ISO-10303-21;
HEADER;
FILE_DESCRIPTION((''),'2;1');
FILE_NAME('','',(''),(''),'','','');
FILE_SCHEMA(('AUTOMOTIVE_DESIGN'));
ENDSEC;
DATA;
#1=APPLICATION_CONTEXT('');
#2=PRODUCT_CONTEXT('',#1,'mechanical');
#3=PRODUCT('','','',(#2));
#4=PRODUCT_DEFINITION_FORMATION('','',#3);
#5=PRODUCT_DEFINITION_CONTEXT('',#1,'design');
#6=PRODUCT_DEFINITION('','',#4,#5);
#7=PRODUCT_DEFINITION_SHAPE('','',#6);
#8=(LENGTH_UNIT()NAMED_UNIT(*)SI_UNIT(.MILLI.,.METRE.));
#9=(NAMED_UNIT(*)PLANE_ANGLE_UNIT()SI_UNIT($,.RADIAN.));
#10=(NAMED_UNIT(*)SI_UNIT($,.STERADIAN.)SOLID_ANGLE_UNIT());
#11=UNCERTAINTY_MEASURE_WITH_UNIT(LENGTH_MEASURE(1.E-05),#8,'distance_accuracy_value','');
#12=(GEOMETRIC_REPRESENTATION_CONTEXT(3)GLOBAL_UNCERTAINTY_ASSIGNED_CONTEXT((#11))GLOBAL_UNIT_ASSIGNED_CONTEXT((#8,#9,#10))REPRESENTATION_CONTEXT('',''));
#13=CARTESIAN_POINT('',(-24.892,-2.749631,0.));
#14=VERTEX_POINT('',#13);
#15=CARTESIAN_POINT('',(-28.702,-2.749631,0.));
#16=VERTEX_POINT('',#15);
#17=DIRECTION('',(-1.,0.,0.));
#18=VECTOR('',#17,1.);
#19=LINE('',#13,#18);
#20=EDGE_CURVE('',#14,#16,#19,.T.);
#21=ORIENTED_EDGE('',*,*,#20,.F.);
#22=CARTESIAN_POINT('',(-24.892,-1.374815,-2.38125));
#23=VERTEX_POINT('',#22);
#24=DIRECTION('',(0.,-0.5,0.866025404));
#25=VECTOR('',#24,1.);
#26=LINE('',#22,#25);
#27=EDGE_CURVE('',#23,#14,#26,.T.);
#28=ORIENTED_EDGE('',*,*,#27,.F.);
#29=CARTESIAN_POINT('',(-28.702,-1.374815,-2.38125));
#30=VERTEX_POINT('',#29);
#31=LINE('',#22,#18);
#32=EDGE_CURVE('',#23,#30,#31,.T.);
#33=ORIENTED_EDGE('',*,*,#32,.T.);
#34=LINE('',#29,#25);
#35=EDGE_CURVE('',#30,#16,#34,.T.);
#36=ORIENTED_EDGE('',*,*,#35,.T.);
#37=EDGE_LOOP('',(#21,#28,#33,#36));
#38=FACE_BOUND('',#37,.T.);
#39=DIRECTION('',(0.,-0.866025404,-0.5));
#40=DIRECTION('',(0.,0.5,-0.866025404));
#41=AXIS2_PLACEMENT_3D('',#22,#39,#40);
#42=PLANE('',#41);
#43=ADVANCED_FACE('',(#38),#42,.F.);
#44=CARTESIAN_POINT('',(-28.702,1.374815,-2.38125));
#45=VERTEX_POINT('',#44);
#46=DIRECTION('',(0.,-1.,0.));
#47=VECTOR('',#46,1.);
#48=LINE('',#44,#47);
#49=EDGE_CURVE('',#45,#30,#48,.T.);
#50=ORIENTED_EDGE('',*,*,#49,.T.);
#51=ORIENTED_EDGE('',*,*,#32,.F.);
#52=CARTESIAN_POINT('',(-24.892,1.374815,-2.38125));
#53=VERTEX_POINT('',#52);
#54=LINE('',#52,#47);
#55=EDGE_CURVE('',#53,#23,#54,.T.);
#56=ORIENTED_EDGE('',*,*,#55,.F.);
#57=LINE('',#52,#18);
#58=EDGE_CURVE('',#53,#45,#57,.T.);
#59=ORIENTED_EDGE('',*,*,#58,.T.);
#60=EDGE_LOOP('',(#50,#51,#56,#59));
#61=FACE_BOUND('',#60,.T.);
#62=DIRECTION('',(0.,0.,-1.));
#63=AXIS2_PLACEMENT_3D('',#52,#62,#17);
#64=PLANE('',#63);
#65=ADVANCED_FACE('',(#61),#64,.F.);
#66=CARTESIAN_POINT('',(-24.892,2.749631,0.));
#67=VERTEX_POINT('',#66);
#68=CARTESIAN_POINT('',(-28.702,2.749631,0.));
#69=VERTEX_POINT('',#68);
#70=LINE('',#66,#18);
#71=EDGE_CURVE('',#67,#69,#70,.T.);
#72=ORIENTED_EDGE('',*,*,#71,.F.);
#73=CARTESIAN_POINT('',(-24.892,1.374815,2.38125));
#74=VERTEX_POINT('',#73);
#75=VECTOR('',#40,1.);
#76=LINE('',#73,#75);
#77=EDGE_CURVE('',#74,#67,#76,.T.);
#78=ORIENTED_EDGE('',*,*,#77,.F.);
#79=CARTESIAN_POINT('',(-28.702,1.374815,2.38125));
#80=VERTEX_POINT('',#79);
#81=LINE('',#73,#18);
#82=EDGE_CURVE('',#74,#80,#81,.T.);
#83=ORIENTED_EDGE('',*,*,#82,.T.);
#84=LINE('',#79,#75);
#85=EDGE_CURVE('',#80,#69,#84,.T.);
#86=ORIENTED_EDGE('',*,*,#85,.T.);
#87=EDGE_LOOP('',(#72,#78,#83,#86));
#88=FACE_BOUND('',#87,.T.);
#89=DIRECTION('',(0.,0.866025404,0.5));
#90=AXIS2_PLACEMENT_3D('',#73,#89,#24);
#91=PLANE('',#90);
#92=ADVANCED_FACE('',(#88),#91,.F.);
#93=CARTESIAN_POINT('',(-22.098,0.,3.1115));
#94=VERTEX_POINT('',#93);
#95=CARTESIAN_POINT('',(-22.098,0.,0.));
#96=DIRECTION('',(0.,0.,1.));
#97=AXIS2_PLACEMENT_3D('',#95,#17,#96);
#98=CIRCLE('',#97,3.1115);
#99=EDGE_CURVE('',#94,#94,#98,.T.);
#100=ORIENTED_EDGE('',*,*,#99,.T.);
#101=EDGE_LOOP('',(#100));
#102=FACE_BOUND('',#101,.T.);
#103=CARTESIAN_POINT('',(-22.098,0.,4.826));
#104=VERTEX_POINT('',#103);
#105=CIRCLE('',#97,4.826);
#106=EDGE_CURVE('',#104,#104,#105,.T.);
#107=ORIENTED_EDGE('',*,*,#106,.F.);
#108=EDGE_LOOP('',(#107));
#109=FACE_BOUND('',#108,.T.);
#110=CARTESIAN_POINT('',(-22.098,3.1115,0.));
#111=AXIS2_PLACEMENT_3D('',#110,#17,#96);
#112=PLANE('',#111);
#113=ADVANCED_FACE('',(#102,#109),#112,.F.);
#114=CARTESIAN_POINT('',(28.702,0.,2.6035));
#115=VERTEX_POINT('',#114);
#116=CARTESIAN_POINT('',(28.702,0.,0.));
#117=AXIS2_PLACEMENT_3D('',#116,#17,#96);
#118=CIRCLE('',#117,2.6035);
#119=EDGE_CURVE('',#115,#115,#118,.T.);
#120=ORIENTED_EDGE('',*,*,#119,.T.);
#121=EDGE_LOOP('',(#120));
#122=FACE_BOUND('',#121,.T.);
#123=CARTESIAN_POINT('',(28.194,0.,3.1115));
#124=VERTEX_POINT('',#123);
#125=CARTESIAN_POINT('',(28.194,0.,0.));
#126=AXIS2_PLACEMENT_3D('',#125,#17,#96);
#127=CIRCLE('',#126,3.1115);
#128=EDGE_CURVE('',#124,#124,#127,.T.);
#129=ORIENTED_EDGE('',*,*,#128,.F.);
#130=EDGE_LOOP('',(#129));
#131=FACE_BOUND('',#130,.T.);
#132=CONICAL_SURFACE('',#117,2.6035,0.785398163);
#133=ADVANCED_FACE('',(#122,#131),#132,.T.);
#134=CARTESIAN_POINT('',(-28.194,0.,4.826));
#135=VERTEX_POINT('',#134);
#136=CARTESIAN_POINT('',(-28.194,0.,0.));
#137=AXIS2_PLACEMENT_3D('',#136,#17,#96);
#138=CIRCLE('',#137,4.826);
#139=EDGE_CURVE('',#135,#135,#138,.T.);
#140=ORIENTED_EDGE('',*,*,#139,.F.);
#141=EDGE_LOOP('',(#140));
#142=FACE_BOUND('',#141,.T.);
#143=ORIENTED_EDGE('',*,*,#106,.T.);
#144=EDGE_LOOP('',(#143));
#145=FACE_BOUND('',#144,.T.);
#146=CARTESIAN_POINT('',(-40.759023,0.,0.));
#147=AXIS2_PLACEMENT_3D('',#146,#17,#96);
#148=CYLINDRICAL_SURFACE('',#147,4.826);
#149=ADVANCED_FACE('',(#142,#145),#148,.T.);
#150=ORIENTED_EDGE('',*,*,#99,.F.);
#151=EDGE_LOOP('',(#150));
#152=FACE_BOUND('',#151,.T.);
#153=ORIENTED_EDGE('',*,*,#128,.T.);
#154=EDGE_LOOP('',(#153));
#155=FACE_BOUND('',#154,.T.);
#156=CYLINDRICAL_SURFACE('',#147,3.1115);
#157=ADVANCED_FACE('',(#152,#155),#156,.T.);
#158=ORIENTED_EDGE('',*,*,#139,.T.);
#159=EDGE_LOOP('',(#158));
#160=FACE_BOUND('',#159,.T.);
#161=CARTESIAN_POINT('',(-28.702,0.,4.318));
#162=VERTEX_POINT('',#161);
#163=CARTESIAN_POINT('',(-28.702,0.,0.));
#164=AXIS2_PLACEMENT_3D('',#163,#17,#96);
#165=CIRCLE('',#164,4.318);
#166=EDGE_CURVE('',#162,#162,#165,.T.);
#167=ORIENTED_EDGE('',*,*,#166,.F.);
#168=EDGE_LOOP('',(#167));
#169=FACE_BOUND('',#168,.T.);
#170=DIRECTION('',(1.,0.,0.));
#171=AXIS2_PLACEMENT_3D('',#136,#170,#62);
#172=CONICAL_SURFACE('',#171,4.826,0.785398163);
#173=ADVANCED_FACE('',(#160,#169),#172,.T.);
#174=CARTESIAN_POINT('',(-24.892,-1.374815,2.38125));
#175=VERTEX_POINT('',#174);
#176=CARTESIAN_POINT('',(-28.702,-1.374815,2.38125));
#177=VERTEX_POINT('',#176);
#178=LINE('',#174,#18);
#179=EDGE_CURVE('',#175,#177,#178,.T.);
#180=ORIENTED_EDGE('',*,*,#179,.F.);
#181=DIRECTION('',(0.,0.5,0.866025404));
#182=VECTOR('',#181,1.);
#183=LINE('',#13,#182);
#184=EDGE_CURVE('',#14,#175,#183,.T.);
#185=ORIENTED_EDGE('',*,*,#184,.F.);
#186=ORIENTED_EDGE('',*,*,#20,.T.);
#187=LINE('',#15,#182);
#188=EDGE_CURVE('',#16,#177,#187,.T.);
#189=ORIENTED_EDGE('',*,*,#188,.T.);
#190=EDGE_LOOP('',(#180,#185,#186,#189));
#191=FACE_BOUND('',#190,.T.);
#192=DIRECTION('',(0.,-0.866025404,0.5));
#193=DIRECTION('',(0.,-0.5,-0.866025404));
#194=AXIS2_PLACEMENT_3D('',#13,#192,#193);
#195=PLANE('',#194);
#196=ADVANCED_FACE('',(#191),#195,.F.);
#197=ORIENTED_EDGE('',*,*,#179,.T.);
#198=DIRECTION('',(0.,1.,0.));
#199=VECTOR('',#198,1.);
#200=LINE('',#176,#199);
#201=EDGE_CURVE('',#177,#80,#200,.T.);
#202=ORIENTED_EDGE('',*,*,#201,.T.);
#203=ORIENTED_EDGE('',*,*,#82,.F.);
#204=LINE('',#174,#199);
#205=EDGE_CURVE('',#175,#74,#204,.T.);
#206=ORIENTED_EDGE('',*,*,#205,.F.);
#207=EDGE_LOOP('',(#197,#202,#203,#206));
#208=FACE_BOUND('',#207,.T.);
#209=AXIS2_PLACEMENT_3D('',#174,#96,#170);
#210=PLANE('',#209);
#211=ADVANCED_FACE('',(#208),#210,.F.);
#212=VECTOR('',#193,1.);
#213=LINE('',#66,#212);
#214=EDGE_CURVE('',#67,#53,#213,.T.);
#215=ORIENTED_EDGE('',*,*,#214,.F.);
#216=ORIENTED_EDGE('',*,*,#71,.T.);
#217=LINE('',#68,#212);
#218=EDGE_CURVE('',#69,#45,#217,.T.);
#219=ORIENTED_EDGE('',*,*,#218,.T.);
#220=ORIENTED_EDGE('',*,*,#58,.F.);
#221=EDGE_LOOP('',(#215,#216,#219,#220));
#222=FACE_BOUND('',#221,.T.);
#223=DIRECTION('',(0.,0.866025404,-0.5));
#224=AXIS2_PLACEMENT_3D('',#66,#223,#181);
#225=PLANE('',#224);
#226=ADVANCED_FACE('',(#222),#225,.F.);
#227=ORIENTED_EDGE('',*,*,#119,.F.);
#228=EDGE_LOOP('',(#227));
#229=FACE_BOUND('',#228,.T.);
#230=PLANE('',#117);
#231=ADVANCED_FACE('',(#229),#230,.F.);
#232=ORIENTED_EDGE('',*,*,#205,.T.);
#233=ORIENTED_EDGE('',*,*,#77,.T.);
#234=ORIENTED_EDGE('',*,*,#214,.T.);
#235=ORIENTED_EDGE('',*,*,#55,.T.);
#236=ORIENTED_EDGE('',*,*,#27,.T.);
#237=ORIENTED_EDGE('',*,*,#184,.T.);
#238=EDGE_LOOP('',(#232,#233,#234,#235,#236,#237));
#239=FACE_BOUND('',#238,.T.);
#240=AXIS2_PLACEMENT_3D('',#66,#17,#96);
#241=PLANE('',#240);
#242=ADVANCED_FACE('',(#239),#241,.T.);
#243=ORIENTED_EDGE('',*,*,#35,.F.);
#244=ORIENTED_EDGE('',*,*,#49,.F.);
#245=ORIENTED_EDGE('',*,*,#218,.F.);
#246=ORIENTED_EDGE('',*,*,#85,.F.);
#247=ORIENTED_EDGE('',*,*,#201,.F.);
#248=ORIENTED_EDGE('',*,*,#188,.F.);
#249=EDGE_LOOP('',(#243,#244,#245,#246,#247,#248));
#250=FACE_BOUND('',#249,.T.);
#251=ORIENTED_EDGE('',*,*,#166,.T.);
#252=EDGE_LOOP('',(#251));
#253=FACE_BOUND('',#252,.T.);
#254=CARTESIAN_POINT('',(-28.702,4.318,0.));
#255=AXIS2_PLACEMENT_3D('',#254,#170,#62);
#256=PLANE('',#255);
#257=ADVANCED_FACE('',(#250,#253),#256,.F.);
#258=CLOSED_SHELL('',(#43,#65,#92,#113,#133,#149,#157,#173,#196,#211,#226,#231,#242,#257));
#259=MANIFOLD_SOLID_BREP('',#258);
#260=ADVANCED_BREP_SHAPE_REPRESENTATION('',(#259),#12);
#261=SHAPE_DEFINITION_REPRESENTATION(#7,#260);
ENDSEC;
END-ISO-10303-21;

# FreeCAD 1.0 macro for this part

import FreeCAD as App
import Part
import Sketcher

V = App.Vector
Q = App.Units.Quantity

doc = App.newDocument("Part")
body = doc.addObject("PartDesign::Body", "Body")

# Sketch on XY plane
sketch1 = doc.addObject("Sketcher::SketchObject", "Sketch")
body.addObject(sketch1)
sketch1.AttachmentSupport = (doc.XY_Plane, [""])
sketch1.MapMode = "FlatFace"
sketch1.addGeometry(Part.LineSegment(V(28.7, 0, 0), V(28.7, 2.6, 0)), False)
sketch1.addGeometry(Part.LineSegment(V(28.7, 2.6, 0), V(28.2, 3.1, 0)), False)
sketch1.addGeometry(Part.LineSegment(V(28.2, 3.1, 0), V(-22.1, 3.1, 0)), False)
sketch1.addGeometry(Part.LineSegment(V(-22.1, 3.1, 0), V(-22.1, 4.8, 0)), False)
sketch1.addGeometry(Part.LineSegment(V(-22.1, 4.8, 0), V(-28.2, 4.8, 0)), False)
sketch1.addGeometry(Part.LineSegment(V(-28.2, 4.8, 0), V(-28.7, 4.3, 0)), False)
sketch1.addGeometry(Part.LineSegment(V(-28.7, 4.3, 0), V(-28.7, 0, 0)), False)
sketch1.addGeometry(Part.LineSegment(V(-28.7, 0, 0), V(28.7, 0, 0)), False)
sketch1.addConstraint(Sketcher.Constraint("Coincident", 0, 2, 1, 1))
sketch1.addConstraint(Sketcher.Constraint("Coincident", 1, 2, 2, 1))
sketch1.addConstraint(Sketcher.Constraint("Coincident", 2, 2, 3, 1))
sketch1.addConstraint(Sketcher.Constraint("Coincident", 3, 2, 4, 1))
sketch1.addConstraint(Sketcher.Constraint("Coincident", 4, 2, 5, 1))
sketch1.addConstraint(Sketcher.Constraint("Coincident", 5, 2, 6, 1))
sketch1.addConstraint(Sketcher.Constraint("Coincident", 6, 2, 7, 1))
sketch1.addConstraint(Sketcher.Constraint("Coincident", 7, 2, 0, 1))
sketch1.addConstraint(Sketcher.Constraint("Vertical", 0))
sketch1.addConstraint(Sketcher.Constraint("Horizontal", 2))
sketch1.addConstraint(Sketcher.Constraint("Vertical", 3))
sketch1.addConstraint(Sketcher.Constraint("Horizontal", 4))
sketch1.addConstraint(Sketcher.Constraint("Vertical", 6))
sketch1.addConstraint(Sketcher.Constraint("Horizontal", 7))
sketch1.addConstraint(Sketcher.Constraint("Symmetric", 6, 2, 7, 2, -1, 1))
sketch1.addConstraint(Sketcher.Constraint("Perpendicular", 1, 5))
sketch1.addConstraint(Sketcher.Constraint("Equal", 1, 5))
sketch1.addConstraint(Sketcher.Constraint("Angle", 1, Q("135 deg")))
sketch1.addConstraint(Sketcher.Constraint("DistanceX", 2, 2, 0, 2, Q("2 in")))
sketch1.addConstraint(Sketcher.Constraint("DistanceX", 2, 2, 2, 1, Q("1.98 in")))
sketch1.addConstraint(Sketcher.Constraint("DistanceX", 4, 2, 4, 1, Q("0.24 in")))
sketch1.addConstraint(Sketcher.Constraint("DistanceY", 6, 2, 6, 1, Q("0.17 in")))
sketch1.addConstraint(Sketcher.Constraint("DistanceY", 0, 1, 0, 2, Q("0.1025 in")))
revolution = doc.addObject("PartDesign::Revolution", "Revolution")
body.addObject(revolution)
revolution.Profile = sketch1
revolution.ReferenceAxis = (sketch1, ["H_Axis"])
revolution.Angle = 360

# Sketch on YZ plane
sketch2 = doc.addObject("Sketcher::SketchObject", "Sketch001")
body.addObject(sketch2)
sketch2.AttachmentSupport = (doc.YZ_Plane, [""])
sketch2.MapMode = "FlatFace"
sketch2.AttachmentOffset = App.Placement(V(0, 0, -1.13 * 25.4), App.Rotation())
sketch2.addGeometry(Part.LineSegment(V(2.7, 0, 0), V(1.4, -2.4, 0)), False)
sketch2.addGeometry(Part.LineSegment(V(1.4, -2.4, 0), V(-1.4, -2.4, 0)), False)
sketch2.addGeometry(Part.LineSegment(V(-1.4, -2.4, 0), V(-2.7, 0, 0)), False)
sketch2.addGeometry(Part.LineSegment(V(-2.7, 0, 0), V(-1.4, 2.4, 0)), False)
sketch2.addGeometry(Part.LineSegment(V(-1.4, 2.4, 0), V(1.4, 2.4, 0)), False)
sketch2.addGeometry(Part.LineSegment(V(1.4, 2.4, 0), V(2.7, 0, 0)), False)
sketch2.addConstraint(Sketcher.Constraint("Coincident", 0, 2, 1, 1))
sketch2.addConstraint(Sketcher.Constraint("Coincident", 1, 2, 2, 1))
sketch2.addConstraint(Sketcher.Constraint("Coincident", 2, 2, 3, 1))
sketch2.addConstraint(Sketcher.Constraint("Coincident", 3, 2, 4, 1))
sketch2.addConstraint(Sketcher.Constraint("Coincident", 4, 2, 5, 1))
sketch2.addConstraint(Sketcher.Constraint("Coincident", 5, 2, 0, 1))
sketch2.addConstraint(Sketcher.Constraint("Horizontal", 1))
sketch2.addConstraint(Sketcher.Constraint("Horizontal", 4))
sketch2.addConstraint(Sketcher.Constraint("Symmetric", 0, 2, 3, 2, -1, 1))
sketch2.addConstraint(Sketcher.Constraint("Symmetric", 2, 2, 5, 2, -1, 1))
sketch2.addConstraint(Sketcher.Constraint("PointOnObject", 2, 2, -1))
sketch2.addConstraint(Sketcher.Constraint("Parallel", 2, 5))
sketch2.addConstraint(Sketcher.Constraint("Vertical", 1, 2, 3, 2))
sketch2.addConstraint(Sketcher.Constraint("Angle", 0, Q("-120 deg")))
sketch2.addConstraint(Sketcher.Constraint("DistanceY", 0, 2, -1, 1, Q("0.09375 in")))
sketch2.addConstraint(Sketcher.Constraint("DistanceX", 1, 2, 1, 1, 2.749631))
pocket1 = doc.addObject("PartDesign::Pocket", "Pocket")
body.addObject(pocket1)
pocket1.Profile = sketch2
pocket1.Length = Q("0.15 in")
pocket1.Reversed = True

doc.recompute()
